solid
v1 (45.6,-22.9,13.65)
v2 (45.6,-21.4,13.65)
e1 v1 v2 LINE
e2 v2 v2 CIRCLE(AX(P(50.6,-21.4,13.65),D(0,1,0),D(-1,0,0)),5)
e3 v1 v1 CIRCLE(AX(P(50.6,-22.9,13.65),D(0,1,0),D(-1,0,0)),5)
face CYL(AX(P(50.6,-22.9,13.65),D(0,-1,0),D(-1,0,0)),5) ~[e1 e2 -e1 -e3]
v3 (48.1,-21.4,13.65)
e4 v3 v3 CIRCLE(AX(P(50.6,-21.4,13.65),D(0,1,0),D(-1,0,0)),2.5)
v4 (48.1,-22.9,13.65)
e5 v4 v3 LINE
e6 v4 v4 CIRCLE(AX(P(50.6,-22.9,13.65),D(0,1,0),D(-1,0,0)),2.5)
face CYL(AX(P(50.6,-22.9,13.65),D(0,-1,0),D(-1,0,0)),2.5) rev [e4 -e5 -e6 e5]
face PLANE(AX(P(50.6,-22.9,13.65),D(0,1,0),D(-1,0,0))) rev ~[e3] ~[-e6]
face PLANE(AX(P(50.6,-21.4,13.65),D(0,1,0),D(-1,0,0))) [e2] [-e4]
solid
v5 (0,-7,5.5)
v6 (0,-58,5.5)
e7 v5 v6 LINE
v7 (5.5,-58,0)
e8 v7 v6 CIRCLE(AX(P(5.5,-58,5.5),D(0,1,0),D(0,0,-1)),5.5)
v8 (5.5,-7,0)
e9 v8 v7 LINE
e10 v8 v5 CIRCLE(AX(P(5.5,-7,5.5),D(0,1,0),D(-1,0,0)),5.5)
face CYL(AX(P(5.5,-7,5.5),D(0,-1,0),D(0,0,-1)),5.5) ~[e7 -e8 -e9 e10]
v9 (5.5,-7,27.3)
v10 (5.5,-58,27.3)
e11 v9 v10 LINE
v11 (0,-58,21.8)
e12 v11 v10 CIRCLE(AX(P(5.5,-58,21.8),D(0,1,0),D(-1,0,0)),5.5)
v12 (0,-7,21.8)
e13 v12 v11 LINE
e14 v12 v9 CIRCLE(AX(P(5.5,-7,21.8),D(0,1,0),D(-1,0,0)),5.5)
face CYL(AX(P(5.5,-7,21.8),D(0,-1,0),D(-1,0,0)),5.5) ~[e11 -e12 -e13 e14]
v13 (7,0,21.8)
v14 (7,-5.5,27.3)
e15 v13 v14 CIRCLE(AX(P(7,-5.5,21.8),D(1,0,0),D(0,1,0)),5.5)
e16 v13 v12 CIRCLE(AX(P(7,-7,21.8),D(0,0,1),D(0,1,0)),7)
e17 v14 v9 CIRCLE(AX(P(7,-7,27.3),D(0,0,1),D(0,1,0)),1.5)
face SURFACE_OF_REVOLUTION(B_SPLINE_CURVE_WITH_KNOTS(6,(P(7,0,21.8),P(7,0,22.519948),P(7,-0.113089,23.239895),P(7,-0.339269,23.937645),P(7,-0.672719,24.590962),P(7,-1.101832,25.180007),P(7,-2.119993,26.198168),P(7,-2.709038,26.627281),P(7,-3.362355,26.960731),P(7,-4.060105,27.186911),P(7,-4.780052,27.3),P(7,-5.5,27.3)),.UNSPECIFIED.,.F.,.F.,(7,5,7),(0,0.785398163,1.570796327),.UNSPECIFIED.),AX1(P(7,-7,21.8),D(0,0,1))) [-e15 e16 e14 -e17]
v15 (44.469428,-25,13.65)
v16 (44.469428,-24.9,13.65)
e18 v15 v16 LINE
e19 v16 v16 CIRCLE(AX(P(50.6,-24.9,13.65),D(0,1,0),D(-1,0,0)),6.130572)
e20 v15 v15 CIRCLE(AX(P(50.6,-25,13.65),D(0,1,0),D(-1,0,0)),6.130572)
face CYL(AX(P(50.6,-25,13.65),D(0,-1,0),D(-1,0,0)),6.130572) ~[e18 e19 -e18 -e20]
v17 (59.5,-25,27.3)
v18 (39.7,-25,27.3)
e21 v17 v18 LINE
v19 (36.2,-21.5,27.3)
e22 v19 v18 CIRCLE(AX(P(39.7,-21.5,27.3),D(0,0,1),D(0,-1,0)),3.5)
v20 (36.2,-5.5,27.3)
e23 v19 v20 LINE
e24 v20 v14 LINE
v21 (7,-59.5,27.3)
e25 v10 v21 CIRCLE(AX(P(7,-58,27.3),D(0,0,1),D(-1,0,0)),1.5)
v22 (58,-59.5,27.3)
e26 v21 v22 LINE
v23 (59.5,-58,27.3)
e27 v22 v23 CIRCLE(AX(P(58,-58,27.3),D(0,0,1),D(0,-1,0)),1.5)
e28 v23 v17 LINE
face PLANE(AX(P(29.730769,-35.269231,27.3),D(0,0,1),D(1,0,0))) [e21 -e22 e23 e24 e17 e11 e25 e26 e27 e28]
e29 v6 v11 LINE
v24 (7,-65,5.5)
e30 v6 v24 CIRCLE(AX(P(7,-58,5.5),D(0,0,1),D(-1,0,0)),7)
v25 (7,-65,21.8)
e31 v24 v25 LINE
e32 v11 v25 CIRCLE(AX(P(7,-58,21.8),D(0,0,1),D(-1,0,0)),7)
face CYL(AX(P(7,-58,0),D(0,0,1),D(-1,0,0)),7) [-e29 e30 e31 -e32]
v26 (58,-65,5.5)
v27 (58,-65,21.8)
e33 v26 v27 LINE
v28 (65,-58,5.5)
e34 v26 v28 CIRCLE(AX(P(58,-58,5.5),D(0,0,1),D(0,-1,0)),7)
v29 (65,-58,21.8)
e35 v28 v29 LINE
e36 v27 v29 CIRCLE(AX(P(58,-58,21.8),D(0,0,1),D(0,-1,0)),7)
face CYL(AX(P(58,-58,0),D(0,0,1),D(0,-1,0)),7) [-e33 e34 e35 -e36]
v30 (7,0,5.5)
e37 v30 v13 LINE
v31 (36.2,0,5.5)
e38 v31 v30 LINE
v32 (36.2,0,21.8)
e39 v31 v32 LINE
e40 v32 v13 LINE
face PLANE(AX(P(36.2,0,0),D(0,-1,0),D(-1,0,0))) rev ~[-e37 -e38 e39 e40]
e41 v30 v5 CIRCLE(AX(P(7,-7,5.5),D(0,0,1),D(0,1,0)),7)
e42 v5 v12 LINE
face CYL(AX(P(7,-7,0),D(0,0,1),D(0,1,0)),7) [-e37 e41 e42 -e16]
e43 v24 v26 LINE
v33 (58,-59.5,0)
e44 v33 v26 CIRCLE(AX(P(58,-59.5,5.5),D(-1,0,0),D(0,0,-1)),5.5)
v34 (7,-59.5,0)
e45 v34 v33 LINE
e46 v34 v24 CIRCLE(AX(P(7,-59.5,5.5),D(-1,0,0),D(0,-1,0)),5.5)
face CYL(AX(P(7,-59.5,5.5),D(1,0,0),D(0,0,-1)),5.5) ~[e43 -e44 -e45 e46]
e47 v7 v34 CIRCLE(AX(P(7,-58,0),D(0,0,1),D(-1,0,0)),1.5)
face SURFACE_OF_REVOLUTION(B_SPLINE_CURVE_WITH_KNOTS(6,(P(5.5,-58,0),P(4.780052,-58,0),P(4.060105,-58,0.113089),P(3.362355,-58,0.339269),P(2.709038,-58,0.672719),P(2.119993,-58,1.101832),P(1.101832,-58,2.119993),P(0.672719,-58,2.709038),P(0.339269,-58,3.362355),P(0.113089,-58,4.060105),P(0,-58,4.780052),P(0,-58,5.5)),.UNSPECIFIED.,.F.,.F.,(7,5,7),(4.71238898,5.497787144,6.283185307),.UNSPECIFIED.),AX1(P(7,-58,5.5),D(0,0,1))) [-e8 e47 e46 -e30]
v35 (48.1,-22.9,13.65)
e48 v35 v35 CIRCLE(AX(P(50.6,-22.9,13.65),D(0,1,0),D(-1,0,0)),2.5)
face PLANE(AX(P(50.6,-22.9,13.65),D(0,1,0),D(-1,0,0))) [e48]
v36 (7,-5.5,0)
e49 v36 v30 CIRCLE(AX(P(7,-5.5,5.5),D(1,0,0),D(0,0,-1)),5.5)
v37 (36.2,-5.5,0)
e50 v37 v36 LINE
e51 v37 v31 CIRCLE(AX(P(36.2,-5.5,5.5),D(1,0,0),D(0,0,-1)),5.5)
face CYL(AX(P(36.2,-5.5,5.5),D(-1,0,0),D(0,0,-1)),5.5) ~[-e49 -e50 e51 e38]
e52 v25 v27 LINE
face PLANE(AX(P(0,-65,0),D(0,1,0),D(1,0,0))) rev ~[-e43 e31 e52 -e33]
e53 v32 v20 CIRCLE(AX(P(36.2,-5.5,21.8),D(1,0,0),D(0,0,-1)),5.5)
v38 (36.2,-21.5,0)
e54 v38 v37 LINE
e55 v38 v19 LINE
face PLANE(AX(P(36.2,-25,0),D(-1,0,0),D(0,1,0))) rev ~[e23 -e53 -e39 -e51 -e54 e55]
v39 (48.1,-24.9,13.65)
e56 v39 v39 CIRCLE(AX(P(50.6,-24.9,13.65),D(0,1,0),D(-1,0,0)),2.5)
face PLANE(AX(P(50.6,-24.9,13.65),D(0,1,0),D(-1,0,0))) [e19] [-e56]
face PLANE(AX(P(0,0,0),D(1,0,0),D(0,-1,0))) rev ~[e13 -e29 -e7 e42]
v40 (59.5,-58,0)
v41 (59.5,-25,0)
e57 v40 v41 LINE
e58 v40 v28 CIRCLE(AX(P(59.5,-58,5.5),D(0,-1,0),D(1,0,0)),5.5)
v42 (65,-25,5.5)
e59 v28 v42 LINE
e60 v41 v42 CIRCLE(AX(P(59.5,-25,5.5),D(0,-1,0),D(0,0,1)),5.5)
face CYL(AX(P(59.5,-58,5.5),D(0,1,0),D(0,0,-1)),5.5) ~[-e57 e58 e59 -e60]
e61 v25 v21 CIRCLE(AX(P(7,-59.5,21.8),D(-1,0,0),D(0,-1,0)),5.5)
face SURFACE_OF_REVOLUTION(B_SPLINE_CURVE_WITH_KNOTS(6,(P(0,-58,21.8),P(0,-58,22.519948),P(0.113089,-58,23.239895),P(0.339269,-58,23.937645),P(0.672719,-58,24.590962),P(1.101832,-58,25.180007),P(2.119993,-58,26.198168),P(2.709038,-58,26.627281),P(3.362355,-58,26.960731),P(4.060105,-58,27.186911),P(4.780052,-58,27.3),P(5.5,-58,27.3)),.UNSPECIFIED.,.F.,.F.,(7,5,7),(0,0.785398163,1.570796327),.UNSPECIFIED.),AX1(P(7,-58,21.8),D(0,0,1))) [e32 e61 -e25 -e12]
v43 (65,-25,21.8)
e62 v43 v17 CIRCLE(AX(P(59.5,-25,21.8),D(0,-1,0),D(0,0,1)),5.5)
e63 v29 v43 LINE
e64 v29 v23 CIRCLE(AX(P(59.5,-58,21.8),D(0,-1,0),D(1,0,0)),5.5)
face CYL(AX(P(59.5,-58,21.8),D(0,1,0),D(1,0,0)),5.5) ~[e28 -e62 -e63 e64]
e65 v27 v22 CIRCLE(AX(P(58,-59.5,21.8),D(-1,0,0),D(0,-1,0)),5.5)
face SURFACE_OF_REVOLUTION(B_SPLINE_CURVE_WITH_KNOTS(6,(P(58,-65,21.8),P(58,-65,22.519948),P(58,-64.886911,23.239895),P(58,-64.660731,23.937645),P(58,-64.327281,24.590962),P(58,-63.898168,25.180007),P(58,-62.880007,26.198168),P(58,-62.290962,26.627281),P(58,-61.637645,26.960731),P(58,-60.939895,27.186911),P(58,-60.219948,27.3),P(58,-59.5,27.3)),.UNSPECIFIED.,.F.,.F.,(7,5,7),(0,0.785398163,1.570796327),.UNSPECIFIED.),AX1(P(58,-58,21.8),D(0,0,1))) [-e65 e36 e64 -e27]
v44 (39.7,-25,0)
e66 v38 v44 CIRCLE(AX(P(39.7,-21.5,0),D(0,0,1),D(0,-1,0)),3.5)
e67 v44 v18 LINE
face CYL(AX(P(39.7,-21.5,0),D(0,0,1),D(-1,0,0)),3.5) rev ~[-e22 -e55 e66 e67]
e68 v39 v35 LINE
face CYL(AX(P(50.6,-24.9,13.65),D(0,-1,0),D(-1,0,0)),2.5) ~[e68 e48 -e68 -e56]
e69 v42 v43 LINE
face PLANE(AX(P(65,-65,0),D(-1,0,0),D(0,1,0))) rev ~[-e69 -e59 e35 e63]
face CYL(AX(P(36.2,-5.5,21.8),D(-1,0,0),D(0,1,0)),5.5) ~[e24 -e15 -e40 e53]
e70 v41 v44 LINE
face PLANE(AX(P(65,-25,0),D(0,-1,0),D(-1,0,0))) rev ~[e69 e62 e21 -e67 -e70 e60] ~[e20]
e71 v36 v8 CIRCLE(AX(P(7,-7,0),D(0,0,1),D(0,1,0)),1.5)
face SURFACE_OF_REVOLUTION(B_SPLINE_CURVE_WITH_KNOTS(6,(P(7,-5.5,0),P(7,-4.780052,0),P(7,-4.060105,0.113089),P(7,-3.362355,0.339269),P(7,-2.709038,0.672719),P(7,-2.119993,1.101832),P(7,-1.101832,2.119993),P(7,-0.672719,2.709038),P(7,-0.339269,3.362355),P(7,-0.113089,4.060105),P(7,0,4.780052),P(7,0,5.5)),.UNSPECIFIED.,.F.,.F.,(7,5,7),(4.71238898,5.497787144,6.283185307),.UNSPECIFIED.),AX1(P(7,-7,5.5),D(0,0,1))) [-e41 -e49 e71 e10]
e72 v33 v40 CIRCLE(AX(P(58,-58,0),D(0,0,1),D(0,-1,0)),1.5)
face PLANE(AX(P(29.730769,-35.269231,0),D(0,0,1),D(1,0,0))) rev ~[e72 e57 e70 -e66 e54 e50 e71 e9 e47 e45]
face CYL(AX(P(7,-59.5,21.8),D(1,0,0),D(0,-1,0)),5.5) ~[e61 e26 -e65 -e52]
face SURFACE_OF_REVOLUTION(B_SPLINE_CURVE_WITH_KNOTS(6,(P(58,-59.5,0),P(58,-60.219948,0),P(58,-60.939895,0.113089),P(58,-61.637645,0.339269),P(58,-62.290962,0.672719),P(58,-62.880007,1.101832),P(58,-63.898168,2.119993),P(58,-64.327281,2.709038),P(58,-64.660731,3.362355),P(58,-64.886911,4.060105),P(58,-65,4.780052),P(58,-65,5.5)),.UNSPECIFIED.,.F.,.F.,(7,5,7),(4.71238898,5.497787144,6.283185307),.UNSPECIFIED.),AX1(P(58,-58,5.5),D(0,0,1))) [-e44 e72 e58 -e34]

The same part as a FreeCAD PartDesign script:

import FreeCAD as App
import Part
import Sketcher
from FreeCAD import Vector


def edges_at(feature, points):
    """Names of the edges that pass closest to the given points."""
    edges = feature.Shape.Edges
    near = lambda p: min(range(len(edges)), key=lambda i: edges[i].distToShape(Part.Vertex(*p))[0])
    return sorted({f"Edge{near(p) + 1}" for p in points})


def add_polygon(sketch, points):
    """Adds a closed chain of lines whose ends are joined by coincident constraints."""
    first, n = sketch.GeometryCount, len(points)
    for a, b in zip(points, points[1:] + points[:1]):
        sketch.addGeometry(Part.LineSegment(App.Vector(*a, 0), App.Vector(*b, 0)), False)
    for i in range(n):
        sketch.addConstraint(Sketcher.Constraint("Coincident", first + i, 2, first + (i + 1) % n, 1))

doc = App.newDocument("Part")
params = doc.addObject("Spreadsheet::Sheet", "Params")
for row, (alias, value) in enumerate([
    ("sketch1_width", "65 mm"),
    ("sketch1_height", "40 mm"),
    ("sketch1_width2", "36.2 mm"),
    ("pad1_length", "27.3 mm"),
    ("fillet_radius", "7 mm"),
    ("fillet2_radius", "3.5 mm"),
    ("fillet3_radius", "5.5 mm"),
    ("pad2_length", "0.1 mm"),
    ("sketch3_diameter", "5 mm"),
    ("pad3_length", "2 mm"),
    ("sketch4_diameter", "10 mm"),
    ("sketch4_diameter2", "5 mm"),
    ("pad4_length", "1.5 mm"),
], start=1):
    params.set(f"A{row}", alias)
    params.set(f"B{row}", "=" + value)
    params.setAlias(f"B{row}", alias)

body = doc.addObject("PartDesign::Body", "Body")

sketch1 = body.newObject("Sketcher::SketchObject", "Sketch")
sketch1.AttachmentSupport = (doc.getObject("XY_Plane"), [""])
sketch1.MapMode = "FlatFace"
add_polygon(sketch1, [(36, 0), (0, 0), (0, -65), (65, -65), (65, -25), (36, -25)])
sketch1.addConstraint([
    Sketcher.Constraint("Horizontal", 0),
    Sketcher.Constraint("Vertical", 1),
    Sketcher.Constraint("Horizontal", 2),
    Sketcher.Constraint("Vertical", 3),
    Sketcher.Constraint("Horizontal", 4),
    Sketcher.Constraint("Vertical", 5),
    Sketcher.Constraint("Coincident", 0, 2, -1, 1),
    Sketcher.Constraint("Equal", 2, 1),
    Sketcher.Constraint("DistanceX", 2, 1, 2, 2, 65.0),
    Sketcher.Constraint("DistanceY", 3, 1, 3, 2, 40.0),
    Sketcher.Constraint("DistanceX", 0, 2, 0, 1, 36.2),
])
sketch1.setExpression("Constraints[14]", "Params.sketch1_width")
sketch1.setExpression("Constraints[15]", "Params.sketch1_height")
sketch1.setExpression("Constraints[16]", "Params.sketch1_width2")
pad1 = body.newObject("PartDesign::Pad", "Pad")
pad1.Profile = sketch1
pad1.setExpression("Length", "Params.pad1_length")
doc.recompute()

fillet = body.newObject("PartDesign::Fillet", "Fillet")
fillet.Base = (pad1, edges_at(pad1, [(0, 0, 13.65), (0, -65, 13.65), (65, -65, 13.65)]))
fillet.setExpression("Radius", "Params.fillet_radius")
doc.recompute()

fillet2 = body.newObject("PartDesign::Fillet", "Fillet001")
fillet2.Base = (fillet, edges_at(fillet, [(36.2, -25, 13.65)]))
fillet2.setExpression("Radius", "Params.fillet2_radius")
doc.recompute()

fillet3 = body.newObject("PartDesign::Fillet", "Fillet002")
fillet3.Base = (fillet2, edges_at(fillet2, [
    (65, -41.5, 0),
    (62.95, -62.95, 0),
    (32.5, -65, 0),
    (2.05, -62.95, 0),
    (0, -32.5, 0),
    (2.05, -2.05, 0),
    (21.6, 0, 0),
    (21.6, 0, 27.3),
    (2.05, -2.05, 27.3),
    (0, -32.5, 27.3),
    (2.05, -62.95, 27.3),
    (32.5, -65, 27.3),
    (62.95, -62.95, 27.3),
    (65, -41.5, 27.3),
]))
fillet3.setExpression("Radius", "Params.fillet3_radius")

sketch2 = body.newObject("Sketcher::SketchObject", "Sketch001")
sketch2.AttachmentSupport = (doc.getObject("XZ_Plane"), [""])
sketch2.MapMode = "FlatFace"
sketch2.AttachmentOffset = App.Placement(Vector(0, 0, 25), App.Rotation())
sketch2.addGeometry(Part.Circle(Vector(51, 14, 0), Vector(0, 0, 1), 6), False)
sketch2.addConstraint([
    Sketcher.Constraint("DistanceX", -1, 1, 0, 3, 50.6),
    Sketcher.Constraint("DistanceY", -1, 1, 0, 3, 13.65),
    Sketcher.Constraint("Diameter", 0, 12.261145),
])
pad2 = body.newObject("PartDesign::Pad", "Pad001")
pad2.Profile = sketch2
pad2.setExpression("Length", "Params.pad2_length")
pad2.Reversed = True

sketch3 = body.newObject("Sketcher::SketchObject", "Sketch002")
sketch3.AttachmentSupport = (doc.getObject("XZ_Plane"), [""])
sketch3.MapMode = "FlatFace"
sketch3.AttachmentOffset = App.Placement(Vector(0, 0, 24.9), App.Rotation())
sketch3.addGeometry(Part.Circle(Vector(50.6, 13.7, 0), Vector(0, 0, 1), 2.5), False)
sketch3.addConstraint([
    Sketcher.Constraint("Diameter", 0, 5.0),
    Sketcher.Constraint("DistanceX", -1, 1, 0, 3, 50.6),
    Sketcher.Constraint("DistanceY", -1, 1, 0, 3, 13.65),
])
sketch3.setExpression("Constraints[0]", "Params.sketch3_diameter")
pad3 = body.newObject("PartDesign::Pad", "Pad002")
pad3.Profile = sketch3
pad3.setExpression("Length", "Params.pad3_length")
pad3.Reversed = True
body2 = doc.addObject("PartDesign::Body", "Body001")

sketch4 = body2.newObject("Sketcher::SketchObject", "Sketch003")
sketch4.AttachmentSupport = (doc.getObject("XZ_Plane001"), [""])
sketch4.MapMode = "FlatFace"
sketch4.AttachmentOffset = App.Placement(Vector(0, 0, 22.9), App.Rotation())
sketch4.addGeometry([
    Part.Circle(Vector(50.6, 13.7, 0), Vector(0, 0, 1), 5),
    Part.Circle(Vector(50.6, 13.7, 0), Vector(0, 0, 1), 2.5),
], False)
sketch4.addConstraint([
    Sketcher.Constraint("Coincident", 1, 3, 0, 3),
    Sketcher.Constraint("Diameter", 0, 10.0),
    Sketcher.Constraint("Diameter", 1, 5.0),
    Sketcher.Constraint("DistanceX", -1, 1, 0, 3, 50.6),
    Sketcher.Constraint("DistanceY", -1, 1, 0, 3, 13.65),
])
sketch4.setExpression("Constraints[1]", "Params.sketch4_diameter")
sketch4.setExpression("Constraints[2]", "Params.sketch4_diameter2")
pad4 = body2.newObject("PartDesign::Pad", "Pad003")
pad4.Profile = sketch4
pad4.setExpression("Length", "Params.pad4_length")
pad4.Reversed = True

doc.recompute()
